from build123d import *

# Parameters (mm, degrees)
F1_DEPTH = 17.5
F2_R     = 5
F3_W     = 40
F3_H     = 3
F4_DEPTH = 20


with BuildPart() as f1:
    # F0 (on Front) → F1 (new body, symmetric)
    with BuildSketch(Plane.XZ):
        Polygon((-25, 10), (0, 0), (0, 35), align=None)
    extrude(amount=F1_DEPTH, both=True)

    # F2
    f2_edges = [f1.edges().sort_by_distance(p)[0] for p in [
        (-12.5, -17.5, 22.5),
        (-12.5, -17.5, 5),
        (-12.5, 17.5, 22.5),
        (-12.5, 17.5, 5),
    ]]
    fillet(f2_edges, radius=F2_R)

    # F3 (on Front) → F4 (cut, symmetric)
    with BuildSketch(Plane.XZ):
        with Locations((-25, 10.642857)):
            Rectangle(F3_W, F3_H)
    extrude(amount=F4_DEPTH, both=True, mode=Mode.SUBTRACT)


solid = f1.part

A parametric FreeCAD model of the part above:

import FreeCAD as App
import Part
import Sketcher

V = App.Vector
Q = App.Units.Quantity


def edges_at(feature, points):
    """Names of the edges that pass closest to the given points."""
    edges = feature.Shape.Edges
    near = lambda p: min(range(len(edges)), key=lambda i: edges[i].distToShape(Part.Vertex(*p))[0])
    return sorted({f"Edge{near(p) + 1}" for p in points})

doc = App.newDocument("Part")
body = doc.addObject("PartDesign::Body", "Body")

# Sketch on XZ plane
sketch1 = doc.addObject("Sketcher::SketchObject", "Sketch")
body.addObject(sketch1)
sketch1.AttachmentSupport = (doc.XZ_Plane, [""])
sketch1.MapMode = "FlatFace"
sketch1.addGeometry(Part.LineSegment(V(-25, 10, 0), V(0, 0, 0)), False)
sketch1.addGeometry(Part.LineSegment(V(0, 0, 0), V(0, 35, 0)), False)
sketch1.addGeometry(Part.LineSegment(V(0, 35, 0), V(-25, 10, 0)), False)
sketch1.addConstraint(Sketcher.Constraint("Coincident", 0, 2, 1, 1))
sketch1.addConstraint(Sketcher.Constraint("Coincident", 1, 2, 2, 1))
sketch1.addConstraint(Sketcher.Constraint("Coincident", 2, 2, 0, 1))
sketch1.addConstraint(Sketcher.Constraint("Vertical", 1))
sketch1.addConstraint(Sketcher.Constraint("Coincident", 0, 2, -1, 1))
sketch1.addConstraint(Sketcher.Constraint("DistanceY", 1, 1, 1, 2, Q("35 mm")))
sketch1.addConstraint(Sketcher.Constraint("Angle", 2, Q("-135 deg")))
sketch1.addConstraint(Sketcher.Constraint("DistanceX", 2, 2, -1, 1, Q("25 mm")))
pad1 = doc.addObject("PartDesign::Pad", "Pad")
body.addObject(pad1)
pad1.Profile = sketch1
pad1.Length = 35
pad1.Midplane = True
doc.recompute()

fillet = doc.addObject("PartDesign::Fillet", "Fillet")
body.addObject(fillet)
fillet.Base = (pad1, edges_at(pad1, [
    (-12.5, -17.5, 22.5),
    (-12.5, -17.5, 5),
    (-12.5, 17.5, 22.5),
    (-12.5, 17.5, 5),
]))
fillet.Radius = 5

# Sketch on XZ plane
sketch2 = doc.addObject("Sketcher::SketchObject", "Sketch001")
body.addObject(sketch2)
sketch2.AttachmentSupport = (doc.XZ_Plane, [""])
sketch2.MapMode = "FlatFace"
sketch2.addGeometry(Part.LineSegment(V(-45, 12.1, 0), V(-45, 9.1, 0)), False)
sketch2.addGeometry(Part.LineSegment(V(-45, 9.1, 0), V(-5, 9.1, 0)), False)
sketch2.addGeometry(Part.LineSegment(V(-5, 9.1, 0), V(-5, 12.1, 0)), False)
sketch2.addGeometry(Part.LineSegment(V(-5, 12.1, 0), V(-45, 12.1, 0)), False)
sketch2.addConstraint(Sketcher.Constraint("Coincident", 0, 2, 1, 1))
sketch2.addConstraint(Sketcher.Constraint("Coincident", 1, 2, 2, 1))
sketch2.addConstraint(Sketcher.Constraint("Coincident", 2, 2, 3, 1))
sketch2.addConstraint(Sketcher.Constraint("Coincident", 3, 2, 0, 1))
sketch2.addConstraint(Sketcher.Constraint("Vertical", 0))
sketch2.addConstraint(Sketcher.Constraint("Horizontal", 1))
sketch2.addConstraint(Sketcher.Constraint("Vertical", 2))
sketch2.addConstraint(Sketcher.Constraint("Horizontal", 3))
sketch2.addConstraint(Sketcher.Constraint("DistanceX", 1, 1, 1, 2, Q("40 mm")))
sketch2.addConstraint(Sketcher.Constraint("DistanceY", 0, 2, 0, 1, Q("3 mm")))
sketch2.addConstraint(Sketcher.Constraint("DistanceX", 0, 2, -1, 1, Q("45 mm")))
sketch2.addConstraint(Sketcher.Constraint("DistanceY", -1, 1, 0, 2, Q("9.142857 mm")))
pocket1 = doc.addObject("PartDesign::Pocket", "Pocket")
body.addObject(pocket1)
pocket1.Profile = sketch2
pocket1.Length = 40
pocket1.Midplane = True

doc.recompute()
